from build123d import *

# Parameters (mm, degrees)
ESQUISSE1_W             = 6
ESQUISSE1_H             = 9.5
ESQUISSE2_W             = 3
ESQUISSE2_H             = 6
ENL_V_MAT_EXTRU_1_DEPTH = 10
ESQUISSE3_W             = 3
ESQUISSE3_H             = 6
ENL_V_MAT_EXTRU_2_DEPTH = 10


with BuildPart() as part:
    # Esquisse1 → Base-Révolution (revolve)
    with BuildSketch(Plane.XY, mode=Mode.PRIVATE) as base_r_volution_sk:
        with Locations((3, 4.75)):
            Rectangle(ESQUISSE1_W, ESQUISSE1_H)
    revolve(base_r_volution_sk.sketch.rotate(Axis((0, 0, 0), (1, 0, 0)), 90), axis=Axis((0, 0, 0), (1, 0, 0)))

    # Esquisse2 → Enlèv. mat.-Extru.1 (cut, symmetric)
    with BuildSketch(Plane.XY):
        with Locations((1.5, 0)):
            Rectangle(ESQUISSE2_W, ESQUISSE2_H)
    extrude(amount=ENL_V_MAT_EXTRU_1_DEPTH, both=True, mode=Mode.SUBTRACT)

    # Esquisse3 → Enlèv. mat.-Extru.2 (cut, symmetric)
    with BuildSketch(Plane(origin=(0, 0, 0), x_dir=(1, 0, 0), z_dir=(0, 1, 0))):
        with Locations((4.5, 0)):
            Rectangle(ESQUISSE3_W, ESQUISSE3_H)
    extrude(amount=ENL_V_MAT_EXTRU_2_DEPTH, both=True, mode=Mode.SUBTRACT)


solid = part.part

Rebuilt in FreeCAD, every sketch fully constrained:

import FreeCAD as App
import Part
import Sketcher

V = App.Vector

doc = App.newDocument("Part")
params = doc.addObject("Spreadsheet::Sheet", "Params")
for row, (alias, value) in enumerate([
    ("sketch1_width", "6 mm"),
    ("sketch1_height", "9.5 mm"),
    ("revolution_angle", "360 deg"),
    ("sketch2_width", "3 mm"),
    ("sketch2_height", "6 mm"),
    ("pocket1_length", "20 mm"),
    ("sketch3_width", "3 mm"),
    ("sketch3_height", "6 mm"),
    ("pocket2_length", "20 mm"),
], start=1):
    params.set(f"A{row}", alias)
    params.set(f"B{row}", "=" + value)
    params.setAlias(f"B{row}", alias)

body = doc.addObject("PartDesign::Body", "Body")

sketch1 = body.newObject("Sketcher::SketchObject", "Sketch")
sketch1.AttachmentSupport = (doc.getObject("XY_Plane"), [""])
sketch1.MapMode = "FlatFace"
sketch1.addGeometry(Part.LineSegment(V(0, 9.5, 0), V(0, 0, 0)), False)
sketch1.addGeometry(Part.LineSegment(V(0, 0, 0), V(6, 0, 0)), False)
sketch1.addGeometry(Part.LineSegment(V(6, 0, 0), V(6, 9.5, 0)), False)
sketch1.addGeometry(Part.LineSegment(V(6, 9.5, 0), V(0, 9.5, 0)), False)
sketch1.addConstraint(Sketcher.Constraint("Coincident", 0, 2, 1, 1))
sketch1.addConstraint(Sketcher.Constraint("Coincident", 1, 2, 2, 1))
sketch1.addConstraint(Sketcher.Constraint("Coincident", 2, 2, 3, 1))
sketch1.addConstraint(Sketcher.Constraint("Coincident", 3, 2, 0, 1))
sketch1.addConstraint(Sketcher.Constraint("Vertical", 0))
sketch1.addConstraint(Sketcher.Constraint("Horizontal", 1))
sketch1.addConstraint(Sketcher.Constraint("Vertical", 2))
sketch1.addConstraint(Sketcher.Constraint("Horizontal", 3))
sketch1.addConstraint(Sketcher.Constraint("Coincident", 0, 2, -1, 1))
sketch1.addConstraint(Sketcher.Constraint("DistanceX", 1, 1, 1, 2, 6.0))
sketch1.addConstraint(Sketcher.Constraint("DistanceY", 0, 2, 0, 1, 9.5))
sketch1.setExpression("Constraints[9]", "Params.sketch1_width")
sketch1.setExpression("Constraints[10]", "Params.sketch1_height")
revolution = body.newObject("PartDesign::Revolution", "Revolution")
revolution.Profile = sketch1
revolution.ReferenceAxis = (sketch1, ["H_Axis"])
revolution.setExpression("Angle", "Params.revolution_angle")

sketch2 = body.newObject("Sketcher::SketchObject", "Sketch001")
sketch2.AttachmentSupport = (doc.getObject("XY_Plane"), [""])
sketch2.MapMode = "FlatFace"
sketch2.addGeometry(Part.LineSegment(V(0, 3, 0), V(0, -3, 0)), False)
sketch2.addGeometry(Part.LineSegment(V(0, -3, 0), V(3, -3, 0)), False)
sketch2.addGeometry(Part.LineSegment(V(3, -3, 0), V(3, 3, 0)), False)
sketch2.addGeometry(Part.LineSegment(V(3, 3, 0), V(0, 3, 0)), False)
sketch2.addConstraint(Sketcher.Constraint("Coincident", 0, 2, 1, 1))
sketch2.addConstraint(Sketcher.Constraint("Coincident", 1, 2, 2, 1))
sketch2.addConstraint(Sketcher.Constraint("Coincident", 2, 2, 3, 1))
sketch2.addConstraint(Sketcher.Constraint("Coincident", 3, 2, 0, 1))
sketch2.addConstraint(Sketcher.Constraint("Vertical", 0))
sketch2.addConstraint(Sketcher.Constraint("Horizontal", 1))
sketch2.addConstraint(Sketcher.Constraint("Vertical", 2))
sketch2.addConstraint(Sketcher.Constraint("Horizontal", 3))
sketch2.addConstraint(Sketcher.Constraint("Symmetric", 0, 2, 3, 2, -1, 1))
sketch2.addConstraint(Sketcher.Constraint("DistanceX", 1, 1, 1, 2, 3.0))
sketch2.addConstraint(Sketcher.Constraint("DistanceY", 0, 2, 0, 1, 6.0))
sketch2.setExpression("Constraints[9]", "Params.sketch2_width")
sketch2.setExpression("Constraints[10]", "Params.sketch2_height")
pocket1 = body.newObject("PartDesign::Pocket", "Pocket")
pocket1.Profile = sketch2
pocket1.setExpression("Length", "Params.pocket1_length")
pocket1.Midplane = True

sketch3 = body.newObject("Sketcher::SketchObject", "Sketch002")
sketch3.AttachmentSupport = (doc.getObject("XZ_Plane"), [""])
sketch3.MapMode = "FlatFace"
sketch3.addGeometry(Part.LineSegment(V(3, -3, 0), V(3, 3, 0)), False)
sketch3.addGeometry(Part.LineSegment(V(3, 3, 0), V(6, 3, 0)), False)
sketch3.addGeometry(Part.LineSegment(V(6, 3, 0), V(6, -3, 0)), False)
sketch3.addGeometry(Part.LineSegment(V(6, -3, 0), V(3, -3, 0)), False)
sketch3.addConstraint(Sketcher.Constraint("Coincident", 0, 2, 1, 1))
sketch3.addConstraint(Sketcher.Constraint("Coincident", 1, 2, 2, 1))
sketch3.addConstraint(Sketcher.Constraint("Coincident", 2, 2, 3, 1))
sketch3.addConstraint(Sketcher.Constraint("Coincident", 3, 2, 0, 1))
sketch3.addConstraint(Sketcher.Constraint("Vertical", 0))
sketch3.addConstraint(Sketcher.Constraint("Horizontal", 1))
sketch3.addConstraint(Sketcher.Constraint("Vertical", 2))
sketch3.addConstraint(Sketcher.Constraint("Horizontal", 3))
sketch3.addConstraint(Sketcher.Constraint("DistanceX", 1, 1, 1, 2, 3.0))
sketch3.addConstraint(Sketcher.Constraint("DistanceY", 0, 1, 0, 2, 6.0))
sketch3.addConstraint(Sketcher.Constraint("DistanceX", -1, 1, 0, 2, 3.0))
sketch3.addConstraint(Sketcher.Constraint("DistanceY", -1, 1, 0, 2, 3.0))
sketch3.setExpression("Constraints[8]", "Params.sketch3_width")
sketch3.setExpression("Constraints[9]", "Params.sketch3_height")
pocket2 = body.newObject("PartDesign::Pocket", "Pocket001")
pocket2.Profile = sketch3
pocket2.setExpression("Length", "Params.pocket2_length")
pocket2.Midplane = True

doc.recompute()
